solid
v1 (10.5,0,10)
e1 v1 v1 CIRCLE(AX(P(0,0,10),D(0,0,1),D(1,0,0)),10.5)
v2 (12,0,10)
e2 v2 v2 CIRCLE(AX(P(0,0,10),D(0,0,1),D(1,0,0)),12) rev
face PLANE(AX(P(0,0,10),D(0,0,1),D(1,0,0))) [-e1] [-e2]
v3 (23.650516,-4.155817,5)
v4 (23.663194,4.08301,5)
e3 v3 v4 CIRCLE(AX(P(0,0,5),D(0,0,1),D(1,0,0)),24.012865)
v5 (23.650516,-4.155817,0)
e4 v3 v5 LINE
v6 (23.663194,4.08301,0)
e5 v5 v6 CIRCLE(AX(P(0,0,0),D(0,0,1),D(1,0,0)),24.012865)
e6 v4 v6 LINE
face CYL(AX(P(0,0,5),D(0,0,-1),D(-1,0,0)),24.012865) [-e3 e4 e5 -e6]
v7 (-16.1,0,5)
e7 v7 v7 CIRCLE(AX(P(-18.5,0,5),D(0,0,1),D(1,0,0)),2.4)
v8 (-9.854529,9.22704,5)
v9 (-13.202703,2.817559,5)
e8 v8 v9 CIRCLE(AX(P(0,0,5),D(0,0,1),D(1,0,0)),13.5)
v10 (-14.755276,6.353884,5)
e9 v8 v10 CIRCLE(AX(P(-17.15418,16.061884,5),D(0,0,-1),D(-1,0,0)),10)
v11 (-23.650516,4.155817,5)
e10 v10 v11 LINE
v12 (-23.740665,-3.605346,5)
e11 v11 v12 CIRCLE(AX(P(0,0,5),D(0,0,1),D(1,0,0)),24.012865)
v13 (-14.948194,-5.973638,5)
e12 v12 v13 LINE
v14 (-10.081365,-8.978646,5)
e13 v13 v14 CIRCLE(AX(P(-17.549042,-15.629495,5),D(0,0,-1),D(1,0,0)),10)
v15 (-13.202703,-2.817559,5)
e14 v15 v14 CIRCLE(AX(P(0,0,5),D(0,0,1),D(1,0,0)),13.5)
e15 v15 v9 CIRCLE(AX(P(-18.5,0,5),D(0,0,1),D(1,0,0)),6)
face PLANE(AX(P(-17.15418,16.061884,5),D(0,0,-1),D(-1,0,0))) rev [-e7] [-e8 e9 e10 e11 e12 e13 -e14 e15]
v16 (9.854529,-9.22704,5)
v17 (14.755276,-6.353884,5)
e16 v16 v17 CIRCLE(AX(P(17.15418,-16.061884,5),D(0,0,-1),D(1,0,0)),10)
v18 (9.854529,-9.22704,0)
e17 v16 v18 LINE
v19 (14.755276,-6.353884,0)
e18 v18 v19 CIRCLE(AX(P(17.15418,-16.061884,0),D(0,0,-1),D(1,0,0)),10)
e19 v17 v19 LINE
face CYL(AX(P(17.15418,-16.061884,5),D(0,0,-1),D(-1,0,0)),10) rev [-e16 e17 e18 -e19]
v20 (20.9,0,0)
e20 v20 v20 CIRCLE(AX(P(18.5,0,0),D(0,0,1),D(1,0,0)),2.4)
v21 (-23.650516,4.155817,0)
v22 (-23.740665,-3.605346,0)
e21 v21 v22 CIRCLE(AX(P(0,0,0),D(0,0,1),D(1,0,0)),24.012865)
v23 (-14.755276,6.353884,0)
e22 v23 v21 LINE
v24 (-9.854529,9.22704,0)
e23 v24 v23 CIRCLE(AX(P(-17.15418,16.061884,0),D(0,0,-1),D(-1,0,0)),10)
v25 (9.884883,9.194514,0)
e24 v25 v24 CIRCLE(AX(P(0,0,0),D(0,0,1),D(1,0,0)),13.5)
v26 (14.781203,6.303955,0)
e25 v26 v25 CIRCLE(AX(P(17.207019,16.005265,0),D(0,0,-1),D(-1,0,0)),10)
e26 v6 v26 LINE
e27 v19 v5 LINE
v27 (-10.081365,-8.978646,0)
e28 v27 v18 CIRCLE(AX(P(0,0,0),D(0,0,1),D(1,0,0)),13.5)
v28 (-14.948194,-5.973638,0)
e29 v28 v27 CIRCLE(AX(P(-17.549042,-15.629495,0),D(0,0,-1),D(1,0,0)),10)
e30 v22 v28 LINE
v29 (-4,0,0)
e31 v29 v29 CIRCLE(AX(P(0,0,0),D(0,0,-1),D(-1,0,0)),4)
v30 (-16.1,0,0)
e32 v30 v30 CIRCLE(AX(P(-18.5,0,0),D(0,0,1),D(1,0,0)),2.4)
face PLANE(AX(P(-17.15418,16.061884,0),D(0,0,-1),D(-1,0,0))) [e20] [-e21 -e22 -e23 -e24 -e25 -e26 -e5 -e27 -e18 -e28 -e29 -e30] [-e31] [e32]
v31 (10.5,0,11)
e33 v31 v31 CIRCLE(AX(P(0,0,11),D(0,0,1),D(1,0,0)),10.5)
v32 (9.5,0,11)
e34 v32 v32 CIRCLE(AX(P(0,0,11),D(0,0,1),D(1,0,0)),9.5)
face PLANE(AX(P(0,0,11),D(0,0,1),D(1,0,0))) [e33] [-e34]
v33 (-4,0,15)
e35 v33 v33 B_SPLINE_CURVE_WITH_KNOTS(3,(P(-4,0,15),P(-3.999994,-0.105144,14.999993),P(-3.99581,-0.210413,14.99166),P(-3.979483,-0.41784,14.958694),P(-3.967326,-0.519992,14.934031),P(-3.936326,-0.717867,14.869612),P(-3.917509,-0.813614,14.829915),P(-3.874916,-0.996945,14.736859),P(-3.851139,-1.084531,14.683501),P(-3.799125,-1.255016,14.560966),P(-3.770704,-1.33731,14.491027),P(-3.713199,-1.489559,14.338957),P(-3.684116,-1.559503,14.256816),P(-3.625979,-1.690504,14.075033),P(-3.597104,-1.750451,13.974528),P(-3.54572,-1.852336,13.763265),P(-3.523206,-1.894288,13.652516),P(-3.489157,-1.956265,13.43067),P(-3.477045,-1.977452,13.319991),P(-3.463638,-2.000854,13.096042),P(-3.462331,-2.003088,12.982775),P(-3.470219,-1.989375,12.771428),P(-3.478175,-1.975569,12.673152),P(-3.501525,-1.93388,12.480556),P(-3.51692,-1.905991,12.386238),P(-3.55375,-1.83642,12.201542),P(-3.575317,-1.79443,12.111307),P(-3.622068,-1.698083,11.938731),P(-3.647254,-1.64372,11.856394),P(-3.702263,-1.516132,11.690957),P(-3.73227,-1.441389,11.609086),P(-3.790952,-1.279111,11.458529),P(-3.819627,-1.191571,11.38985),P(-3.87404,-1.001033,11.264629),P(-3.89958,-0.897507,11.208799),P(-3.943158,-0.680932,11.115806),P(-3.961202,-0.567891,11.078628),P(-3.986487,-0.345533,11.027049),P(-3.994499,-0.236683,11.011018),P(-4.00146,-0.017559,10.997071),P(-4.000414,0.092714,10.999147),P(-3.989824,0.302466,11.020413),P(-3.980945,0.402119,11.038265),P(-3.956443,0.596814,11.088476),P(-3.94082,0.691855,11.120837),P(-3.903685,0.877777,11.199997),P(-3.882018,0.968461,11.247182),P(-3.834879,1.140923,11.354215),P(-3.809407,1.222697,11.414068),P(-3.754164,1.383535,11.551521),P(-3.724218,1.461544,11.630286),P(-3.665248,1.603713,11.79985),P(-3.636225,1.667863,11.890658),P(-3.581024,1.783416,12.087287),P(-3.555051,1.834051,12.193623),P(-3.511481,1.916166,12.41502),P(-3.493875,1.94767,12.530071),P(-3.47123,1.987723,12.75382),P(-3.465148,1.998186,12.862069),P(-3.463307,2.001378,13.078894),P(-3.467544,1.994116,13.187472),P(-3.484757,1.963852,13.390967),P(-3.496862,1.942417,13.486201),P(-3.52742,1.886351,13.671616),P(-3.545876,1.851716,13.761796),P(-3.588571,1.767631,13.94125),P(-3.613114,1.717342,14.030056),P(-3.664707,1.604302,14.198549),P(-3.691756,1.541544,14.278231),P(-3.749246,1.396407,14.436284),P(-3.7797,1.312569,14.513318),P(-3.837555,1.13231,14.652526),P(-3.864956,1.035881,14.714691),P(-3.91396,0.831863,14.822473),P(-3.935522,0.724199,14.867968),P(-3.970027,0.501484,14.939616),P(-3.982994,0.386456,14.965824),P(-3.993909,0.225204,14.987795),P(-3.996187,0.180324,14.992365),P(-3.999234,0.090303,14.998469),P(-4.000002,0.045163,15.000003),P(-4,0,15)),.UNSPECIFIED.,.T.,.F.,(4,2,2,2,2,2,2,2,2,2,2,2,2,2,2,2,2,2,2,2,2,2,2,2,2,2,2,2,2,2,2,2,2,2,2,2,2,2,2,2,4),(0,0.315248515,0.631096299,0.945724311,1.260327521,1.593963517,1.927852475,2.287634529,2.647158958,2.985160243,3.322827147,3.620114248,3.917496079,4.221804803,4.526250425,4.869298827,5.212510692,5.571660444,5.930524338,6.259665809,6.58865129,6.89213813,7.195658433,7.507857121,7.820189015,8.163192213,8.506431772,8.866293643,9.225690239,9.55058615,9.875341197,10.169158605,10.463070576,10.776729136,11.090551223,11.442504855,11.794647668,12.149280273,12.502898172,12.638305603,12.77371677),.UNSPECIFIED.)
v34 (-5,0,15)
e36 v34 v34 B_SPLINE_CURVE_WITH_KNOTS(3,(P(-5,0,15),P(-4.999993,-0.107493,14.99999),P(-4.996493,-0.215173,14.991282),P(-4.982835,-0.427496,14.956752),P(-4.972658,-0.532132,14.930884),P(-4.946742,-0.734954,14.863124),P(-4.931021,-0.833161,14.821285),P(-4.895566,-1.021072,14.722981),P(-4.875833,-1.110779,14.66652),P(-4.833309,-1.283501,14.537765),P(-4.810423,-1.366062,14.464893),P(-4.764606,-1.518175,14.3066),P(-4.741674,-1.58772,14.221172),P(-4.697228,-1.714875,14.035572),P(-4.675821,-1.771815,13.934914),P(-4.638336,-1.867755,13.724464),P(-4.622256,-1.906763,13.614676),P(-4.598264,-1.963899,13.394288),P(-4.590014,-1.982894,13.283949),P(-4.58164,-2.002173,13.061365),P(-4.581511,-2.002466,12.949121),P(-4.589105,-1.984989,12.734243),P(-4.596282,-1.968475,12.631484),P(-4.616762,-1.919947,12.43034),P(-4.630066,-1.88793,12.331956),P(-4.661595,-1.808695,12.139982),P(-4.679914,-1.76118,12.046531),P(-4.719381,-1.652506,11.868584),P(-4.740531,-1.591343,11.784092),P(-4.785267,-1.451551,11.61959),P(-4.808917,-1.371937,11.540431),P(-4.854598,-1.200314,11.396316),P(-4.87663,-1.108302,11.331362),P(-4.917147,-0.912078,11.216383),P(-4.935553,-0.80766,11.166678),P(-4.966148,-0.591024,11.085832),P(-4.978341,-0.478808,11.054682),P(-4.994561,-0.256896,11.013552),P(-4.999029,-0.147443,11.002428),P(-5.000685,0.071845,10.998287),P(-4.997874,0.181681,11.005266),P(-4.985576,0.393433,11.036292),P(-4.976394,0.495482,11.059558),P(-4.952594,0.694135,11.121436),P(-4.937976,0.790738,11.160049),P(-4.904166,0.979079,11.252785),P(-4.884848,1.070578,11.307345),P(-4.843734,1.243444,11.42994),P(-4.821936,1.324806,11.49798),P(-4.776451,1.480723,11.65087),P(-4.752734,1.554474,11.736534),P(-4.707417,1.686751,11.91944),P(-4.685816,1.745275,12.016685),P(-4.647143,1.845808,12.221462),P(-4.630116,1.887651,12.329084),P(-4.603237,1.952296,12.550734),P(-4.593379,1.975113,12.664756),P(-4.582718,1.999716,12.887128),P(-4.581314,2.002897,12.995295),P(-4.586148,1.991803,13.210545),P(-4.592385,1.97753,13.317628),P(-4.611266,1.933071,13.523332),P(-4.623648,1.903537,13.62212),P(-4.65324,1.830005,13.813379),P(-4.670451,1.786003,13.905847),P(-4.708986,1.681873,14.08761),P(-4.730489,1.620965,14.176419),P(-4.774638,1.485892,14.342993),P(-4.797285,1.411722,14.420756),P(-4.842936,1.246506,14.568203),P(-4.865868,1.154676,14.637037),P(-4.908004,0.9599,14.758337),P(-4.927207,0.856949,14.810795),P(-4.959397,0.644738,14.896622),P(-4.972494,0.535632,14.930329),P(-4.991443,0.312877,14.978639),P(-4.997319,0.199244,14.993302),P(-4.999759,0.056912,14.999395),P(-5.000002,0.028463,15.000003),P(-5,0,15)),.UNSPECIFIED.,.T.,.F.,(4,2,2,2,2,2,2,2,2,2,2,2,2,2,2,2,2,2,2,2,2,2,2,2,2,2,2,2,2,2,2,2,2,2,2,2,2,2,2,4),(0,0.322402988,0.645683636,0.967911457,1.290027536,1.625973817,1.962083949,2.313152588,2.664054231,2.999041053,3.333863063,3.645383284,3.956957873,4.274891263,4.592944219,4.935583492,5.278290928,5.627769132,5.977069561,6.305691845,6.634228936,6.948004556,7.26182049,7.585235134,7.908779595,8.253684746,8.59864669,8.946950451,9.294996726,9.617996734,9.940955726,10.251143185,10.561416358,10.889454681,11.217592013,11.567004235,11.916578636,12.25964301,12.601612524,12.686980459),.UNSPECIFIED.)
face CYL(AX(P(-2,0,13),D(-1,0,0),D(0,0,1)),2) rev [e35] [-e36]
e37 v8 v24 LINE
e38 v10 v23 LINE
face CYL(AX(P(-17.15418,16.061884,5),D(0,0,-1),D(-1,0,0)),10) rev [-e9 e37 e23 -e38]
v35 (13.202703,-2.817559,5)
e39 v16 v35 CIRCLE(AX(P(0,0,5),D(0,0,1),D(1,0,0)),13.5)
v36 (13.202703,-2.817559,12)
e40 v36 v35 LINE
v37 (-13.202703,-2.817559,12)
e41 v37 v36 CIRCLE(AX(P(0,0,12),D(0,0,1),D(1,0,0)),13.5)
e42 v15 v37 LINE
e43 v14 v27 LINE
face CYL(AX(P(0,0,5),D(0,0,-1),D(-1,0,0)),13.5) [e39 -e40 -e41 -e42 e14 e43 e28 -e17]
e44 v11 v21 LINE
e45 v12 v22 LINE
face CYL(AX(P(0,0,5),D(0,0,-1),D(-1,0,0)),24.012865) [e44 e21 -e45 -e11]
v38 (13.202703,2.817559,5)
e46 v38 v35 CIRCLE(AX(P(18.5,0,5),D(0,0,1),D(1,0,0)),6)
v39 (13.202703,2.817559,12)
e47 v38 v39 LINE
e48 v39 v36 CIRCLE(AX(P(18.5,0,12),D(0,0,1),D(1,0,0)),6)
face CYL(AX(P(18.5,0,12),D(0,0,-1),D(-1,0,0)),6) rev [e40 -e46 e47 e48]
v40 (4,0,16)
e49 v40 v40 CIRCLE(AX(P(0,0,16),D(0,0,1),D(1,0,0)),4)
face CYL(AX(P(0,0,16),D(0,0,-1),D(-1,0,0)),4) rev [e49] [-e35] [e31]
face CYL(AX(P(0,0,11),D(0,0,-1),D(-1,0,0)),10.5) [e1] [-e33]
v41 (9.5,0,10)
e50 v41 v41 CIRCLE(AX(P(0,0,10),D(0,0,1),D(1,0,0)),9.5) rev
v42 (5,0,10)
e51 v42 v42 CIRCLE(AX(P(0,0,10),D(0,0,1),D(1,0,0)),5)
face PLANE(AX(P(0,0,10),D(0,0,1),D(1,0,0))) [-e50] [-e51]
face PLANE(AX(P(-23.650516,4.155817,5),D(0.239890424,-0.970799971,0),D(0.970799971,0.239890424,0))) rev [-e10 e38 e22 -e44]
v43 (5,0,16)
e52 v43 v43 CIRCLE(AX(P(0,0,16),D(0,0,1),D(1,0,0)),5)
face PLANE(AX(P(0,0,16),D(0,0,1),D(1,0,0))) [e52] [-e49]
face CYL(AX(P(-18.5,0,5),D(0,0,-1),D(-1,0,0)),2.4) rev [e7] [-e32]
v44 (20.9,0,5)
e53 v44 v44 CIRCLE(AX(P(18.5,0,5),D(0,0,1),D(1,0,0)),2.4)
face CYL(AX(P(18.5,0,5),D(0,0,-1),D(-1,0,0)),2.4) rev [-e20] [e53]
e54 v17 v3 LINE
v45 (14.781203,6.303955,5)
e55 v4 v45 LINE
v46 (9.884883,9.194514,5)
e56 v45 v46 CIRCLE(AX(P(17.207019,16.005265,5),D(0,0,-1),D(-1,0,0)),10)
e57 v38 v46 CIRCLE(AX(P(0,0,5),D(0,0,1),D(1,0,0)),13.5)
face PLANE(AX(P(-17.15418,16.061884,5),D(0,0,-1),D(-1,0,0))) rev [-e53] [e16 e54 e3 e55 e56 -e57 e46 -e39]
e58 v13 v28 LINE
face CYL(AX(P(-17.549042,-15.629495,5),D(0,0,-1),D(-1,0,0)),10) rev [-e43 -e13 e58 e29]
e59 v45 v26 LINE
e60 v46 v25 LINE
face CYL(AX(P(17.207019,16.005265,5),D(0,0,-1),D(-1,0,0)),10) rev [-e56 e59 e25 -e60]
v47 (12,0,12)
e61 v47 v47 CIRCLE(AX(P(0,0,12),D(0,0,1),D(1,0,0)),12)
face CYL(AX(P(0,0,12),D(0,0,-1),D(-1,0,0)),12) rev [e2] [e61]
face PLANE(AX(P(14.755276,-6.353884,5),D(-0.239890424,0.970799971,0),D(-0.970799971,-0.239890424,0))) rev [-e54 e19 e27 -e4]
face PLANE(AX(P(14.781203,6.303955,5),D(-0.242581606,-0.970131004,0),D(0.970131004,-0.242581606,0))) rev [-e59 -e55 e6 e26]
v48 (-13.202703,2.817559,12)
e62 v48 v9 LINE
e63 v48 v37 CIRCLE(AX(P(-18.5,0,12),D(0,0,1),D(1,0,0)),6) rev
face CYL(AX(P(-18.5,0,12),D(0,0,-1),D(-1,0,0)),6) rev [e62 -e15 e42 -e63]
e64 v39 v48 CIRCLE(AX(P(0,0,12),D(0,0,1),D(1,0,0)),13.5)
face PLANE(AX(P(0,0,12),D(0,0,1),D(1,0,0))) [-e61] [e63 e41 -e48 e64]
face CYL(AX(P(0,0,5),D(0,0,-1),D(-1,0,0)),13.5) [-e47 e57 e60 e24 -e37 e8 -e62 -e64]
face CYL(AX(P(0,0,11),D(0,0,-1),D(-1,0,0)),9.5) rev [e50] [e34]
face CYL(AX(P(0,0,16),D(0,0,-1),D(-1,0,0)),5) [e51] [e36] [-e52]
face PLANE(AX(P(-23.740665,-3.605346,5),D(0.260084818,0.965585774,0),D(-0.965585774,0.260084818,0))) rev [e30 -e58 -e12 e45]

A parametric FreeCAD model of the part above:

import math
import FreeCAD as App
import Part
import Sketcher
from FreeCAD import Vector
Q = App.Units.Quantity

doc = App.newDocument("Part")
body = doc.addObject("PartDesign::Body", "Body")

# Sketch on XY plane
sketch1 = body.newObject("Sketcher::SketchObject", "Sketch")
sketch1.AttachmentSupport = (doc.getObject("XY_Plane"), [""])
sketch1.MapMode = "FlatFace"
sketch1.addGeometry([
    Part.LineSegment(Vector(-14.8, 6.4, 0), Vector(-23.7, 4.2, 0)),  # 0
    Part.ArcOfCircle(Part.Circle(Vector(0, 0, 0), Vector(0, 0, 1), 24), math.radians(170.03), math.radians(188.64)),  # 1
    Part.LineSegment(Vector(-23.7, -3.6, 0), Vector(-14.9, -6, 0)),  # 2
    Part.ArcOfCircle(Part.Circle(Vector(-17.5, -15.6, 0), Vector(0, 0, 1), 10), math.radians(42), math.radians(75)),  # 3
    Part.ArcOfCircle(Part.Circle(Vector(0, 0, 0), Vector(0, 0, 1), 13.5), math.radians(-138), math.radians(-43)),  # 4
    Part.ArcOfCircle(Part.Circle(Vector(17.2, -16.1, 0), Vector(0, 0, 1), 10), math.radians(104), math.radians(137)),  # 5
    Part.LineSegment(Vector(14.8, -6.4, 0), Vector(23.7, -4.2, 0)),  # 6
    Part.ArcOfCircle(Part.Circle(Vector(0, 0, 0), Vector(0, 0, 1), 24), math.radians(-9.97), math.radians(9.79)),  # 7
    Part.LineSegment(Vector(23.7, 4.1, 0), Vector(14.8, 6.3, 0)),  # 8
    Part.ArcOfCircle(Part.Circle(Vector(17.2, 16, 0), Vector(0, 0, 1), 10), math.radians(-137), math.radians(-104)),  # 9
    Part.ArcOfCircle(Part.Circle(Vector(0, 0, 0), Vector(0, 0, 1), 13.5), math.radians(43), math.radians(137)),  # 10
    Part.ArcOfCircle(Part.Circle(Vector(-17.2, 16.1, 0), Vector(0, 0, 1), 10), math.radians(-76), math.radians(-43)),  # 11
    Part.Circle(Vector(18.5, 0, 0), Vector(0, 0, 1), 2.4),  # 12
    Part.Circle(Vector(-18.5, 0, 0), Vector(0, 0, 1), 2.4),  # 13
], False)
sketch1.addConstraint([
    Sketcher.Constraint("Coincident", 0, 2, 1, 1),
    Sketcher.Constraint("Coincident", 1, 2, 2, 1),
    Sketcher.Constraint("Tangent", 2, 2, 3, 2),
    Sketcher.Constraint("Tangent", 3, 1, 4, 1),
    Sketcher.Constraint("Tangent", 4, 2, 5, 2),
    Sketcher.Constraint("Tangent", 5, 1, 6, 1),
    Sketcher.Constraint("Coincident", 6, 2, 7, 1),
    Sketcher.Constraint("Coincident", 7, 2, 8, 1),
    Sketcher.Constraint("Tangent", 8, 2, 9, 2),
    Sketcher.Constraint("Tangent", 9, 1, 10, 1),
    Sketcher.Constraint("Tangent", 10, 2, 11, 2),
    Sketcher.Constraint("Tangent", 11, 1, 0, 1),
    Sketcher.Constraint("Coincident", 1, 3, -1, 1),
    Sketcher.Constraint("Coincident", 4, 3, -1, 1),
    Sketcher.Constraint("Coincident", 7, 3, -1, 1),
    Sketcher.Constraint("Coincident", 10, 3, -1, 1),
    Sketcher.Constraint("Equal", 3, 5),
    Sketcher.Constraint("Equal", 1, 7),
    Sketcher.Constraint("Equal", 5, 9),
    Sketcher.Constraint("Equal", 4, 10),
    Sketcher.Constraint("Equal", 9, 11),
    Sketcher.Constraint("Equal", 12, 13),
    Sketcher.Constraint("Symmetric", 12, 3, 13, 3, -1, 1),
    Sketcher.Constraint("Symmetric", 5, 1, 11, 1, -1, 1),
    Sketcher.Constraint("PointOnObject", 12, 3, -1),
    Sketcher.Constraint("Radius", 3, Q("10 mm")),
    Sketcher.Constraint("Diameter", 12, Q("4.8 mm")),
    Sketcher.Constraint("Radius", 4, Q("13.5 mm")),
    Sketcher.Constraint("DistanceX", -1, 1, 12, 3, Q("18.5 mm")),
    Sketcher.Constraint("Radius", 1, Q("24.012865 mm")),
    Sketcher.Constraint("DistanceY", 5, 3, 5, 1, Q("9.708 mm")),
    Sketcher.Constraint("Distance", 2, Q("9.105842 mm")),
    Sketcher.Constraint("DistanceX", -1, 1, 5, 3, Q("17.15418 mm")),
    Sketcher.Constraint("DistanceX", -1, 1, 9, 3, Q("17.207019 mm")),
    Sketcher.Constraint("DistanceY", -1, 1, 7, 2, Q("4.08301 mm")),
    Sketcher.Constraint("DistanceX", 3, 3, 1, 3, Q("17.549042 mm")),
])
pad1 = body.newObject("PartDesign::Pad", "Pad")
pad1.Profile = sketch1
pad1.Length = 5

# Sketch on XY plane
sketch2 = body.newObject("Sketcher::SketchObject", "Sketch001")
sketch2.AttachmentSupport = (doc.getObject("XY_Plane"), [""])
sketch2.MapMode = "FlatFace"
sketch2.AttachmentOffset = App.Placement(Vector(0, 0, 5), App.Rotation())
sketch2.addGeometry(Part.Circle(Vector(0, 0, 0), Vector(0, 0, 1), 14), False)
sketch2.addConstraint([
    Sketcher.Constraint("Coincident", 0, 3, -1, 1),
    Sketcher.Constraint("Diameter", 0, Q("27 mm")),
])
pad2 = body.newObject("PartDesign::Pad", "Pad001")
pad2.Profile = sketch2
pad2.Length = 5

# Sketch on XY plane
sketch3 = body.newObject("Sketcher::SketchObject", "Sketch002")
sketch3.AttachmentSupport = (doc.getObject("XY_Plane"), [""])
sketch3.MapMode = "FlatFace"
sketch3.AttachmentOffset = App.Placement(Vector(0, 0, 10), App.Rotation())
sketch3.addGeometry([
    Part.Circle(Vector(0, 0, 0), Vector(0, 0, 1), 14),
    Part.Circle(Vector(0, 0, 0), Vector(0, 0, 1), 12),
], False)
sketch3.addConstraint([
    Sketcher.Constraint("Coincident", 0, 3, -1, 1),
    Sketcher.Constraint("Coincident", 1, 3, -1, 1),
    Sketcher.Constraint("Diameter", 0, Q("27 mm")),
    Sketcher.Constraint("Diameter", 1, Q("24 mm")),
])
pad3 = body.newObject("PartDesign::Pad", "Pad002")
pad3.Profile = sketch3
pad3.Length = 2

# Sketch on XY plane
sketch4 = body.newObject("Sketcher::SketchObject", "Sketch003")
sketch4.AttachmentSupport = (doc.getObject("XY_Plane"), [""])
sketch4.MapMode = "FlatFace"
sketch4.AttachmentOffset = App.Placement(Vector(0, 0, 10), App.Rotation())
sketch4.addGeometry([
    Part.Circle(Vector(0, 0, 0), Vector(0, 0, 1), 5),
    Part.Circle(Vector(0, 0, 0), Vector(0, 0, 1), 4),
], False)
sketch4.addConstraint([
    Sketcher.Constraint("Coincident", 0, 3, -1, 1),
    Sketcher.Constraint("Coincident", 1, 3, -1, 1),
    Sketcher.Constraint("Diameter", 0, Q("10 mm")),
    Sketcher.Constraint("Diameter", 1, Q("8 mm")),
])
pad4 = body.newObject("PartDesign::Pad", "Pad003")
pad4.Profile = sketch4
pad4.Length = 6

# Sketch on XY plane
sketch5 = body.newObject("Sketcher::SketchObject", "Sketch004")
sketch5.AttachmentSupport = (doc.getObject("XY_Plane"), [""])
sketch5.MapMode = "FlatFace"
sketch5.AttachmentOffset = App.Placement(Vector(0, 0, 5), App.Rotation())
sketch5.addGeometry([
    Part.Circle(Vector(-18, 0, 0), Vector(0, 0, 1), 6),
    Part.Circle(Vector(18, 0, 0), Vector(0, 0, 1), 6),
], False)
sketch5.addConstraint([
    Sketcher.Constraint("Equal", 0, 1),
    Sketcher.Constraint("Symmetric", 0, 3, 1, 3, -1, 1),
    Sketcher.Constraint("PointOnObject", 0, 3, -1),
    Sketcher.Constraint("Diameter", 0, Q("12 mm")),
    Sketcher.Constraint("DistanceX", 0, 3, 1, 3, Q("37 mm")),
])
pocket1 = body.newObject("PartDesign::Pocket", "Pocket")
pocket1.Profile = sketch5
pocket1.Length = 7
pocket1.Reversed = True

# Sketch on XY plane
sketch6 = body.newObject("Sketcher::SketchObject", "Sketch005")
sketch6.AttachmentSupport = (doc.getObject("XY_Plane"), [""])
sketch6.MapMode = "FlatFace"
sketch6.AttachmentOffset = App.Placement(Vector(0, 0, 10), App.Rotation())
sketch6.addGeometry(Part.Circle(Vector(0, 0, 0), Vector(0, 0, 1), 4), False)
sketch6.addConstraint([
    Sketcher.Constraint("Coincident", 0, 3, -1, 1),
    Sketcher.Constraint("Diameter", 0, Q("8 mm")),
])
pocket2 = body.newObject("PartDesign::Pocket", "Pocket001")
pocket2.Profile = sketch6
pocket2.Length = 13

# Sketch on XY plane
sketch7 = body.newObject("Sketcher::SketchObject", "Sketch006")
sketch7.AttachmentSupport = (doc.getObject("XY_Plane"), [""])
sketch7.MapMode = "FlatFace"
sketch7.AttachmentOffset = App.Placement(Vector(0, 0, 10), App.Rotation())
sketch7.addGeometry([
    Part.Circle(Vector(0, 0, 0), Vector(0, 0, 1), 10),
    Part.Circle(Vector(0, 0, 0), Vector(0, 0, 1), 10),
], False)
sketch7.addConstraint([
    Sketcher.Constraint("Coincident", 0, 3, -1, 1),
    Sketcher.Constraint("Coincident", 1, 3, -1, 1),
    Sketcher.Constraint("Diameter", 0, Q("21 mm")),
    Sketcher.Constraint("Diameter", 1, Q("19 mm")),
])
pad5 = body.newObject("PartDesign::Pad", "Pad004")
pad5.Profile = sketch7
pad5.Length = 1

# Sketch on YZ plane
sketch8 = body.newObject("Sketcher::SketchObject", "Sketch007")
sketch8.AttachmentSupport = (doc.getObject("YZ_Plane"), [""])
sketch8.MapMode = "FlatFace"
sketch8.AttachmentOffset = App.Placement(Vector(0, 0, -5), App.Rotation())
sketch8.addGeometry(Part.Circle(Vector(0, 13, 0), Vector(0, 0, 1), 2), False)
sketch8.addConstraint([
    Sketcher.Constraint("PointOnObject", 0, 3, -2),
    Sketcher.Constraint("Diameter", 0, Q("4 mm")),
    Sketcher.Constraint("DistanceY", -1, 1, 0, 3, Q("13 mm")),
])
pocket3 = body.newObject("PartDesign::Pocket", "Pocket002")
pocket3.Profile = sketch8
pocket3.Length = 3
pocket3.Reversed = True

doc.recompute()
